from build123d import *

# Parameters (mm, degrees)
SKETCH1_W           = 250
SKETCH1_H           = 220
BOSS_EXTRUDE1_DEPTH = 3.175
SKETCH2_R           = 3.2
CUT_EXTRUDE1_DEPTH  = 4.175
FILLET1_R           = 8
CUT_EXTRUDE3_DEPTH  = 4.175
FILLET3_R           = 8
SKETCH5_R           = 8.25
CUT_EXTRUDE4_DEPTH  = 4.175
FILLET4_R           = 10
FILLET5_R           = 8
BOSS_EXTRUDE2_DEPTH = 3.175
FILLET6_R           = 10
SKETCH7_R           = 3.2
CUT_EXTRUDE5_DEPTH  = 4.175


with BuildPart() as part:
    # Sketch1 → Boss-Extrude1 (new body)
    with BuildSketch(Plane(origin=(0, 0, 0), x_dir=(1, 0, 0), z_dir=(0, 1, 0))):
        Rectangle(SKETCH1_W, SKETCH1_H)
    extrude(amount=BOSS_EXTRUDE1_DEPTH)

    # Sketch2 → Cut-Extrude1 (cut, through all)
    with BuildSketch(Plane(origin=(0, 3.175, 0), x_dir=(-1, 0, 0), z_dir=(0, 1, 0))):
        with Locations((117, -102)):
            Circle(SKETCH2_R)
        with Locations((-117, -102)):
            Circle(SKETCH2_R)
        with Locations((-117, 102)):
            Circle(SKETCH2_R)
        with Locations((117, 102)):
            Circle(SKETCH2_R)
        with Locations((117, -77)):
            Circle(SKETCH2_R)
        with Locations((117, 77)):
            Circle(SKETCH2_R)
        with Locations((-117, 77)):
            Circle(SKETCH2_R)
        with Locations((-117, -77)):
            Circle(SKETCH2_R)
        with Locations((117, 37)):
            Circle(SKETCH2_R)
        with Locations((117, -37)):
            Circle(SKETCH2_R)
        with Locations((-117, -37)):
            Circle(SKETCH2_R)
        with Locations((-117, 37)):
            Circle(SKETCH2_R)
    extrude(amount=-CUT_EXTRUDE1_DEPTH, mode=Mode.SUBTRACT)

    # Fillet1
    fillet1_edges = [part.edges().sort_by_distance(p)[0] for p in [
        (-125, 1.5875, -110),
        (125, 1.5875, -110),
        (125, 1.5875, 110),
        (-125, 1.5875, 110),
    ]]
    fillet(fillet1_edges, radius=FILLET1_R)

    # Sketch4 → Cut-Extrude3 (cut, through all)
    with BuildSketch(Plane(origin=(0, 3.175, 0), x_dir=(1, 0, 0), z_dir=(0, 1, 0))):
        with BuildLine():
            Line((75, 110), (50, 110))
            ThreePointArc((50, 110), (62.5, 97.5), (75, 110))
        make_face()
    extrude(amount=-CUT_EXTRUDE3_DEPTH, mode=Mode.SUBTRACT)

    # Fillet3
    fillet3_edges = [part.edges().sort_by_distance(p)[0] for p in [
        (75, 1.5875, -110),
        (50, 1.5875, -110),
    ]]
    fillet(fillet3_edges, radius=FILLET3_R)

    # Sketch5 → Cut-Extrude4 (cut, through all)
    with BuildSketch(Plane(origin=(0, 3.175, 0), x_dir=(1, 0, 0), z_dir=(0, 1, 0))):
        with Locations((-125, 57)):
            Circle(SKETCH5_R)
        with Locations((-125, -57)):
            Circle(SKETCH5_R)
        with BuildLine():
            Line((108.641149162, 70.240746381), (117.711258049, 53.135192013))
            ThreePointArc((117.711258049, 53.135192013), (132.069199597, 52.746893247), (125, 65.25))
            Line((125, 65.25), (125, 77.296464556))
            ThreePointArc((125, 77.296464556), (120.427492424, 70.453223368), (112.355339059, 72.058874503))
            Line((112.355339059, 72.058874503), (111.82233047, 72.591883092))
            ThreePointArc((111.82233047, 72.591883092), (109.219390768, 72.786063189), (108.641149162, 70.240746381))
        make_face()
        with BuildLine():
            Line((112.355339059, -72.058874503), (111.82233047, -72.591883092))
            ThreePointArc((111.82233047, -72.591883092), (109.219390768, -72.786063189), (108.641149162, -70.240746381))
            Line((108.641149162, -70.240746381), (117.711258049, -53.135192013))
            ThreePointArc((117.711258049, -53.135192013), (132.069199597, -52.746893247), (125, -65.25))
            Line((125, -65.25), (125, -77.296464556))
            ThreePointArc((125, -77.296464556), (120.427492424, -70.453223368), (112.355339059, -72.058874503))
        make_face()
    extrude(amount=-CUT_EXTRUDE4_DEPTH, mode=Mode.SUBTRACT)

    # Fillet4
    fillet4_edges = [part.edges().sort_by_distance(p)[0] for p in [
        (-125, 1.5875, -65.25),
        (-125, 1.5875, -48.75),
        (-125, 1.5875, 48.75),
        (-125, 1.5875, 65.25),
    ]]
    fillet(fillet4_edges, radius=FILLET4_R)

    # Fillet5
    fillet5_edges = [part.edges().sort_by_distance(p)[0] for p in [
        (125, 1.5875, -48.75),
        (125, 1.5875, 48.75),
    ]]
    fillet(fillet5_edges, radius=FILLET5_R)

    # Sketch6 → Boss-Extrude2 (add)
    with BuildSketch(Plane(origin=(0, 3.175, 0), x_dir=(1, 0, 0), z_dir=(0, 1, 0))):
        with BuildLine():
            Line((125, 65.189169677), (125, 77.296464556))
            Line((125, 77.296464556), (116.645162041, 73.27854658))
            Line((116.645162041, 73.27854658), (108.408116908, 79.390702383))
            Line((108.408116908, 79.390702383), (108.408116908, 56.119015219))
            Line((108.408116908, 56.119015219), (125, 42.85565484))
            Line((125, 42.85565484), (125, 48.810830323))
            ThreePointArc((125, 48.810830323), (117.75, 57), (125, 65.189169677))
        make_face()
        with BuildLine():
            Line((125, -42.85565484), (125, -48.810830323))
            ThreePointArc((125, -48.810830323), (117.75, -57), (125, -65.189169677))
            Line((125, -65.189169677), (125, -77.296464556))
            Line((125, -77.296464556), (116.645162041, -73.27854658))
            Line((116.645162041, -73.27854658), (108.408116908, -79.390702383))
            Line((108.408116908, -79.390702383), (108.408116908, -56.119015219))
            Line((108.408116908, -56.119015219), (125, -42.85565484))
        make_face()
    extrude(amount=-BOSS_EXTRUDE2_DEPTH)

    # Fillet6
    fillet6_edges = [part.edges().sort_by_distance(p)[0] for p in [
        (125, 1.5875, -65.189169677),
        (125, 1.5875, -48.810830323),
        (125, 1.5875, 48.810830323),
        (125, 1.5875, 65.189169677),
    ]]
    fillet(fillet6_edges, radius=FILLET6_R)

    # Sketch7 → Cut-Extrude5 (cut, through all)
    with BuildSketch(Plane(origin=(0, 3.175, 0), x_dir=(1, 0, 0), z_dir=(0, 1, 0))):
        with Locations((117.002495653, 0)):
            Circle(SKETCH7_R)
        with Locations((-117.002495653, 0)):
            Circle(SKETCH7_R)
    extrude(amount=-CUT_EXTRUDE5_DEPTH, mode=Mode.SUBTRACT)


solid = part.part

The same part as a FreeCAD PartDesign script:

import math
import FreeCAD as App
import Part
import Sketcher
from FreeCAD import Vector


def edges_at(feature, points):
    """Names of the edges that pass closest to the given points."""
    edges = feature.Shape.Edges
    near = lambda p: min(range(len(edges)), key=lambda i: edges[i].distToShape(Part.Vertex(*p))[0])
    return sorted({f"Edge{near(p) + 1}" for p in points})


def add_polygon(sketch, points):
    """Adds a closed chain of lines whose ends are joined by coincident constraints."""
    first, n = sketch.GeometryCount, len(points)
    for a, b in zip(points, points[1:] + points[:1]):
        sketch.addGeometry(Part.LineSegment(App.Vector(*a, 0), App.Vector(*b, 0)), False)
    for i in range(n):
        sketch.addConstraint(Sketcher.Constraint("Coincident", first + i, 2, first + (i + 1) % n, 1))

doc = App.newDocument("Part")
body = doc.addObject("PartDesign::Body", "Body")

sketch1 = body.newObject("Sketcher::SketchObject", "Sketch")
sketch1.AttachmentSupport = (doc.getObject("XZ_Plane"), [""])
sketch1.MapMode = "FlatFace"
add_polygon(sketch1, [(-125, -110), (-125, 110), (125, 110), (125, -110)])
sketch1.addConstraint(Sketcher.Constraint("Vertical", 0))
sketch1.addConstraint(Sketcher.Constraint("Horizontal", 1))
sketch1.addConstraint(Sketcher.Constraint("Vertical", 2))
sketch1.addConstraint(Sketcher.Constraint("Horizontal", 3))
sketch1.addConstraint(Sketcher.Constraint("Symmetric", 0, 2, 2, 2, -1, 1))
sketch1.addConstraint(Sketcher.Constraint("DistanceX", 1, 1, 1, 2, 250.0))
sketch1.addConstraint(Sketcher.Constraint("DistanceY", 0, 1, 0, 2, 220.0))
pad1 = body.newObject("PartDesign::Pad", "Pad")
pad1.Profile = sketch1
pad1.Length = 3.175
pad1.Reversed = True

sketch2 = body.newObject("Sketcher::SketchObject", "Sketch001")
sketch2.AttachmentSupport = (doc.getObject("XZ_Plane"), [""])
sketch2.MapMode = "FlatFace"
sketch2.AttachmentOffset = App.Placement(Vector(0, 0, -3.175), App.Rotation())
sketch2.addGeometry(Part.Circle(Vector(-117, -102, 0), Vector(0, 0, 1), 3.2), False)
sketch2.addGeometry(Part.Circle(Vector(117, -102, 0), Vector(0, 0, 1), 3.2), False)
sketch2.addGeometry(Part.Circle(Vector(117, 102, 0), Vector(0, 0, 1), 3.2), False)
sketch2.addGeometry(Part.Circle(Vector(-117, 102, 0), Vector(0, 0, 1), 3.2), False)
sketch2.addGeometry(Part.Circle(Vector(-117, -77, 0), Vector(0, 0, 1), 3.2), False)
sketch2.addGeometry(Part.Circle(Vector(-117, 77, 0), Vector(0, 0, 1), 3.2), False)
sketch2.addGeometry(Part.Circle(Vector(117, 77, 0), Vector(0, 0, 1), 3.2), False)
sketch2.addGeometry(Part.Circle(Vector(117, -77, 0), Vector(0, 0, 1), 3.2), False)
sketch2.addGeometry(Part.Circle(Vector(-117, 37, 0), Vector(0, 0, 1), 3.2), False)
sketch2.addGeometry(Part.Circle(Vector(-117, -37, 0), Vector(0, 0, 1), 3.2), False)
sketch2.addGeometry(Part.Circle(Vector(117, -37, 0), Vector(0, 0, 1), 3.2), False)
sketch2.addGeometry(Part.Circle(Vector(117, 37, 0), Vector(0, 0, 1), 3.2), False)
sketch2.addConstraint(Sketcher.Constraint("Equal", 0, 1))
sketch2.addConstraint(Sketcher.Constraint("Equal", 1, 2))
sketch2.addConstraint(Sketcher.Constraint("Equal", 2, 3))
sketch2.addConstraint(Sketcher.Constraint("Equal", 3, 4))
sketch2.addConstraint(Sketcher.Constraint("Equal", 4, 5))
sketch2.addConstraint(Sketcher.Constraint("Equal", 5, 6))
sketch2.addConstraint(Sketcher.Constraint("Equal", 6, 7))
sketch2.addConstraint(Sketcher.Constraint("Equal", 7, 8))
sketch2.addConstraint(Sketcher.Constraint("Equal", 8, 9))
sketch2.addConstraint(Sketcher.Constraint("Equal", 9, 10))
sketch2.addConstraint(Sketcher.Constraint("Equal", 10, 11))
sketch2.addConstraint(Sketcher.Constraint("Symmetric", 0, 3, 2, 3, -1, 1))
sketch2.addConstraint(Sketcher.Constraint("Symmetric", 1, 3, 3, 3, -1, 1))
sketch2.addConstraint(Sketcher.Constraint("Symmetric", 4, 3, 6, 3, -1, 1))
sketch2.addConstraint(Sketcher.Constraint("Symmetric", 5, 3, 7, 3, -1, 1))
sketch2.addConstraint(Sketcher.Constraint("Symmetric", 8, 3, 10, 3, -1, 1))
sketch2.addConstraint(Sketcher.Constraint("Symmetric", 9, 3, 11, 3, -1, 1))
sketch2.addConstraint(Sketcher.Constraint("Symmetric", 0, 3, 1, 3, -2))
sketch2.addConstraint(Sketcher.Constraint("Symmetric", 5, 3, 6, 3, -2))
sketch2.addConstraint(Sketcher.Constraint("Symmetric", 9, 3, 10, 3, -2))
sketch2.addConstraint(Sketcher.Constraint("Vertical", 3, 3, 4, 3))
sketch2.addConstraint(Sketcher.Constraint("Vertical", 5, 3, 8, 3))
sketch2.addConstraint(Sketcher.Constraint("Diameter", 0, 6.4))
sketch2.addConstraint(Sketcher.Constraint("DistanceX", 0, 3, -1, 1, 117.0))
sketch2.addConstraint(Sketcher.Constraint("DistanceY", 0, 3, -1, 1, 102.0))
sketch2.addConstraint(Sketcher.Constraint("DistanceY", 4, 3, -1, 1, 77.0))
sketch2.addConstraint(Sketcher.Constraint("DistanceY", -1, 1, 8, 3, 37.0))
pocket1 = body.newObject("PartDesign::Pocket", "Pocket")
pocket1.Profile = sketch2
pocket1.Type = "ThroughAll"
pocket1.Reversed = True
doc.recompute()

fillet = body.newObject("PartDesign::Fillet", "Fillet")
fillet.Base = (pocket1, edges_at(pocket1, [
    (-125, 1.587, -110),
    (125, 1.587, -110),
    (125, 1.587, 110),
    (-125, 1.587, 110),
]))
fillet.Radius = 8

sketch3 = body.newObject("Sketcher::SketchObject", "Sketch002")
sketch3.AttachmentSupport = (doc.getObject("XZ_Plane"), [""])
sketch3.MapMode = "FlatFace"
sketch3.AttachmentOffset = App.Placement(Vector(0, 0, -3.175), App.Rotation())
sketch3.addGeometry(Part.LineSegment(Vector(75, -110, 0), Vector(50, -110, 0)), False)
sketch3.addGeometry(Part.ArcOfCircle(Part.Circle(Vector(62, -110, 0), Vector(0, 0, 1), 12), math.radians(0), math.radians(180)), False)
sketch3.addConstraint(Sketcher.Constraint("Coincident", 0, 1, 1, 1))
sketch3.addConstraint(Sketcher.Constraint("Coincident", 1, 2, 0, 2))
sketch3.addConstraint(Sketcher.Constraint("Horizontal", 0))
sketch3.addConstraint(Sketcher.Constraint("Horizontal", 1, 3, 0, 1))
sketch3.addConstraint(Sketcher.Constraint("Radius", 1, 12.5))
sketch3.addConstraint(Sketcher.Constraint("DistanceY", 1, 3, -1, 1, 110.0))
sketch3.addConstraint(Sketcher.Constraint("DistanceX", -1, 1, 0, 1, 75.0))
pocket2 = body.newObject("PartDesign::Pocket", "Pocket001")
pocket2.Profile = sketch3
pocket2.Type = "ThroughAll"
pocket2.Reversed = True
doc.recompute()

fillet2 = body.newObject("PartDesign::Fillet", "Fillet001")
fillet2.Base = (pocket2, edges_at(pocket2, [(75, 1.587, -110), (50, 1.587, -110)]))
fillet2.Radius = 8

sketch4 = body.newObject("Sketcher::SketchObject", "Sketch003")
sketch4.AttachmentSupport = (doc.getObject("XZ_Plane"), [""])
sketch4.MapMode = "FlatFace"
sketch4.AttachmentOffset = App.Placement(Vector(0, 0, -3.175), App.Rotation())
sketch4.addGeometry(Part.Circle(Vector(-125, -57, 0), Vector(0, 0, 1), 8.2), False)
sketch4.addGeometry(Part.Circle(Vector(-125, 57, 0), Vector(0, 0, 1), 8.2), False)
sketch4.addGeometry(Part.LineSegment(Vector(108.6, -70.2, 0), Vector(117.7, -53.1, 0)), False)
sketch4.addGeometry(Part.ArcOfCircle(Part.Circle(Vector(125, -57, 0), Vector(0, 0, 1), 8.2), math.radians(-90), math.radians(152)), False)
sketch4.addGeometry(Part.LineSegment(Vector(125, -65.2, 0), Vector(125, -77.3, 0)), False)
sketch4.addGeometry(Part.ArcOfCircle(Part.Circle(Vector(117.6, -77.3, 0), Vector(0, 0, 1), 7.4), math.radians(0), math.radians(135)), False)
sketch4.addGeometry(Part.LineSegment(Vector(112.4, -72.1, 0), Vector(111.8, -72.6, 0)), False)
sketch4.addGeometry(Part.ArcOfCircle(Part.Circle(Vector(110.4, -71.2, 0), Vector(0, 0, 1), 2), math.radians(152), math.radians(315)), False)
sketch4.addGeometry(Part.LineSegment(Vector(111.8, 72.6, 0), Vector(112.4, 72.1, 0)), False)
sketch4.addGeometry(Part.ArcOfCircle(Part.Circle(Vector(117.6, 77.3, 0), Vector(0, 0, 1), 7.4), math.radians(-135), math.radians(0)), False)
sketch4.addGeometry(Part.LineSegment(Vector(125, 77.3, 0), Vector(125, 65.2, 0)), False)
sketch4.addGeometry(Part.ArcOfCircle(Part.Circle(Vector(125, 57, 0), Vector(0, 0, 1), 8.2), math.radians(-152), math.radians(90)), False)
sketch4.addGeometry(Part.LineSegment(Vector(117.7, 53.1, 0), Vector(108.6, 70.2, 0)), False)
sketch4.addGeometry(Part.ArcOfCircle(Part.Circle(Vector(110.4, 71.2, 0), Vector(0, 0, 1), 2), math.radians(45), math.radians(208)), False)
sketch4.addConstraint(Sketcher.Constraint("Tangent", 2, 2, 3, 2))
sketch4.addConstraint(Sketcher.Constraint("Coincident", 3, 1, 4, 1))
sketch4.addConstraint(Sketcher.Constraint("Tangent", 4, 2, 5, 1))
sketch4.addConstraint(Sketcher.Constraint("Tangent", 5, 2, 6, 1))
sketch4.addConstraint(Sketcher.Constraint("Tangent", 6, 2, 7, 2))
sketch4.addConstraint(Sketcher.Constraint("Tangent", 7, 1, 2, 1))
sketch4.addConstraint(Sketcher.Constraint("Tangent", 8, 2, 9, 1))
sketch4.addConstraint(Sketcher.Constraint("Tangent", 9, 2, 10, 1))
sketch4.addConstraint(Sketcher.Constraint("Coincident", 10, 2, 11, 2))
sketch4.addConstraint(Sketcher.Constraint("Tangent", 11, 1, 12, 1))
sketch4.addConstraint(Sketcher.Constraint("Tangent", 12, 2, 13, 2))
sketch4.addConstraint(Sketcher.Constraint("Tangent", 13, 1, 8, 1))
sketch4.addConstraint(Sketcher.Constraint("Vertical", 4))
sketch4.addConstraint(Sketcher.Constraint("Vertical", 10))
sketch4.addConstraint(Sketcher.Constraint("Equal", 0, 1))
sketch4.addConstraint(Sketcher.Constraint("Equal", 1, 3))
sketch4.addConstraint(Sketcher.Constraint("Equal", 5, 9))
sketch4.addConstraint(Sketcher.Constraint("Equal", 3, 11))
sketch4.addConstraint(Sketcher.Constraint("Equal", 7, 13))
sketch4.addConstraint(Sketcher.Constraint("Symmetric", 1, 3, 3, 3, -1, 1))
sketch4.addConstraint(Sketcher.Constraint("Symmetric", 0, 3, 11, 3, -1, 1))
sketch4.addConstraint(Sketcher.Constraint("Symmetric", 0, 3, 3, 3, -2))
sketch4.addConstraint(Sketcher.Constraint("Symmetric", 5, 3, 9, 3, -1))
sketch4.addConstraint(Sketcher.Constraint("Symmetric", 7, 3, 13, 3, -1))
sketch4.addConstraint(Sketcher.Constraint("Perpendicular", 6, 8))
sketch4.addConstraint(Sketcher.Constraint("Vertical", 11, 3, 3, 1))
sketch4.addConstraint(Sketcher.Constraint("Radius", 7, 2.0))
sketch4.addConstraint(Sketcher.Constraint("Diameter", 0, 16.5))
sketch4.addConstraint(Sketcher.Constraint("DistanceX", 0, 3, -1, 1, 125.0))
sketch4.addConstraint(Sketcher.Constraint("DistanceY", 0, 3, -1, 1, 57.0))
sketch4.addConstraint(Sketcher.Constraint("Radius", 5, 7.407071))
sketch4.addConstraint(Sketcher.Constraint("DistanceX", 6, 2, 5, 3, 5.770599))
sketch4.addConstraint(Sketcher.Constraint("Distance", 2, 19.361479))
pocket3 = body.newObject("PartDesign::Pocket", "Pocket002")
pocket3.Profile = sketch4
pocket3.Type = "ThroughAll"
pocket3.Reversed = True
doc.recompute()

fillet3 = body.newObject("PartDesign::Fillet", "Fillet002")
fillet3.Base = (pocket3, edges_at(pocket3, [
    (-125, 1.587, -65.25),
    (-125, 1.587, -48.75),
    (-125, 1.587, 48.75),
    (-125, 1.587, 65.25),
]))
fillet3.Radius = 10
doc.recompute()

fillet4 = body.newObject("PartDesign::Fillet", "Fillet003")
fillet4.Base = (fillet3, edges_at(fillet3, [(125, 1.587, -48.75), (125, 1.587, 48.75)]))
fillet4.Radius = 8

sketch5 = body.newObject("Sketcher::SketchObject", "Sketch004")
sketch5.AttachmentSupport = (doc.getObject("XZ_Plane"), [""])
sketch5.MapMode = "FlatFace"
sketch5.AttachmentOffset = App.Placement(Vector(0, 0, -3.175), App.Rotation())
sketch5.addGeometry(Part.LineSegment(Vector(125, -65, 0), Vector(125, -77, 0)), False)
sketch5.addGeometry(Part.LineSegment(Vector(125, -77, 0), Vector(117, -73, 0)), False)
sketch5.addGeometry(Part.LineSegment(Vector(117, -73, 0), Vector(108, -79, 0)), False)
sketch5.addGeometry(Part.LineSegment(Vector(108, -79, 0), Vector(108, -56, 0)), False)
sketch5.addGeometry(Part.LineSegment(Vector(108, -56, 0), Vector(125, -43, 0)), False)
sketch5.addGeometry(Part.LineSegment(Vector(125, -43, 0), Vector(125, -49, 0)), False)
sketch5.addGeometry(Part.ArcOfCircle(Part.Circle(Vector(126, -57, 0), Vector(0, 0, 1), 8), math.radians(97), math.radians(263)), False)
sketch5.addGeometry(Part.LineSegment(Vector(125, 49, 0), Vector(125, 43, 0)), False)
sketch5.addGeometry(Part.LineSegment(Vector(125, 43, 0), Vector(108, 56, 0)), False)
sketch5.addGeometry(Part.LineSegment(Vector(108, 56, 0), Vector(108, 79, 0)), False)
sketch5.addGeometry(Part.LineSegment(Vector(108, 79, 0), Vector(117, 73, 0)), False)
sketch5.addGeometry(Part.LineSegment(Vector(117, 73, 0), Vector(125, 77, 0)), False)
sketch5.addGeometry(Part.LineSegment(Vector(125, 77, 0), Vector(125, 65, 0)), False)
sketch5.addGeometry(Part.ArcOfCircle(Part.Circle(Vector(126, 57, 0), Vector(0, 0, 1), 8), math.radians(97), math.radians(263)), False)
sketch5.addConstraint(Sketcher.Constraint("Coincident", 0, 2, 1, 1))
sketch5.addConstraint(Sketcher.Constraint("Coincident", 1, 2, 2, 1))
sketch5.addConstraint(Sketcher.Constraint("Coincident", 2, 2, 3, 1))
sketch5.addConstraint(Sketcher.Constraint("Coincident", 3, 2, 4, 1))
sketch5.addConstraint(Sketcher.Constraint("Coincident", 4, 2, 5, 1))
sketch5.addConstraint(Sketcher.Constraint("Coincident", 5, 2, 6, 1))
sketch5.addConstraint(Sketcher.Constraint("Coincident", 6, 2, 0, 1))
sketch5.addConstraint(Sketcher.Constraint("Coincident", 7, 2, 8, 1))
sketch5.addConstraint(Sketcher.Constraint("Coincident", 8, 2, 9, 1))
sketch5.addConstraint(Sketcher.Constraint("Coincident", 9, 2, 10, 1))
sketch5.addConstraint(Sketcher.Constraint("Coincident", 10, 2, 11, 1))
sketch5.addConstraint(Sketcher.Constraint("Coincident", 11, 2, 12, 1))
sketch5.addConstraint(Sketcher.Constraint("Coincident", 12, 2, 13, 1))
sketch5.addConstraint(Sketcher.Constraint("Coincident", 13, 2, 7, 1))
sketch5.addConstraint(Sketcher.Constraint("Vertical", 0))
sketch5.addConstraint(Sketcher.Constraint("Vertical", 3))
sketch5.addConstraint(Sketcher.Constraint("Vertical", 5))
sketch5.addConstraint(Sketcher.Constraint("Vertical", 7))
sketch5.addConstraint(Sketcher.Constraint("Vertical", 9))
sketch5.addConstraint(Sketcher.Constraint("Vertical", 12))
sketch5.addConstraint(Sketcher.Constraint("Equal", 6, 13))
sketch5.addConstraint(Sketcher.Constraint("Symmetric", 6, 3, 13, 3, -1))
sketch5.addConstraint(Sketcher.Constraint("Symmetric", 4, 2, 7, 2, -1))
sketch5.addConstraint(Sketcher.Constraint("Symmetric", 3, 2, 8, 2, -1))
sketch5.addConstraint(Sketcher.Constraint("Symmetric", 1, 2, 10, 2, -1))
sketch5.addConstraint(Sketcher.Constraint("Symmetric", 0, 2, 11, 2, -1))
sketch5.addConstraint(Sketcher.Constraint("Vertical", 0, 2, 4, 2))
sketch5.addConstraint(Sketcher.Constraint("Equal", 3, 9))
sketch5.addConstraint(Sketcher.Constraint("Radius", 6, 8.25))
sketch5.addConstraint(Sketcher.Constraint("DistanceX", -1, 1, 6, 3, 126.0))
sketch5.addConstraint(Sketcher.Constraint("DistanceY", 6, 3, -1, 1, 57.0))
sketch5.addConstraint(Sketcher.Constraint("DistanceX", -1, 1, 0, 2, 125.0))
sketch5.addConstraint(Sketcher.Constraint("DistanceY", 4, 2, 10, 2, 116.134201))
sketch5.addConstraint(Sketcher.Constraint("Distance", 1, 9.27076))
sketch5.addConstraint(Sketcher.Constraint("Distance", 4, 21.241641))
sketch5.addConstraint(Sketcher.Constraint("DistanceY", 0, 2, 0, 1, 12.107295))
sketch5.addConstraint(Sketcher.Constraint("DistanceY", 3, 1, 3, 2, 23.271687))
sketch5.addConstraint(Sketcher.Constraint("DistanceY", 5, 2, 5, 1, 5.955175))
sketch5.addConstraint(Sketcher.Constraint("DistanceY", 1, 2, 3, 2, 17.159531))
pad2 = body.newObject("PartDesign::Pad", "Pad001")
pad2.Profile = sketch5
pad2.Length = 3.175
doc.recompute()

fillet5 = body.newObject("PartDesign::Fillet", "Fillet004")
fillet5.Base = (pad2, edges_at(pad2, [
    (125, 1.587, -65.189),
    (125, 1.587, -48.811),
    (125, 1.587, 48.811),
    (125, 1.587, 65.189),
]))
fillet5.Radius = 10

sketch6 = body.newObject("Sketcher::SketchObject", "Sketch005")
sketch6.AttachmentSupport = (doc.getObject("XZ_Plane"), [""])
sketch6.MapMode = "FlatFace"
sketch6.AttachmentOffset = App.Placement(Vector(0, 0, -3.175), App.Rotation())
sketch6.addGeometry(Part.Circle(Vector(117, 0, 0), Vector(0, 0, 1), 3.2), False)
sketch6.addGeometry(Part.Circle(Vector(-117, 0, 0), Vector(0, 0, 1), 3.2), False)
sketch6.addConstraint(Sketcher.Constraint("Equal", 0, 1))
sketch6.addConstraint(Sketcher.Constraint("Symmetric", 0, 3, 1, 3, -1, 1))
sketch6.addConstraint(Sketcher.Constraint("PointOnObject", 0, 3, -1))
sketch6.addConstraint(Sketcher.Constraint("Diameter", 0, 6.4))
sketch6.addConstraint(Sketcher.Constraint("DistanceX", 1, 3, 0, 3, 234.004991))
pocket4 = body.newObject("PartDesign::Pocket", "Pocket003")
pocket4.Profile = sketch6
pocket4.Type = "ThroughAll"
pocket4.Reversed = True

doc.recompute()
